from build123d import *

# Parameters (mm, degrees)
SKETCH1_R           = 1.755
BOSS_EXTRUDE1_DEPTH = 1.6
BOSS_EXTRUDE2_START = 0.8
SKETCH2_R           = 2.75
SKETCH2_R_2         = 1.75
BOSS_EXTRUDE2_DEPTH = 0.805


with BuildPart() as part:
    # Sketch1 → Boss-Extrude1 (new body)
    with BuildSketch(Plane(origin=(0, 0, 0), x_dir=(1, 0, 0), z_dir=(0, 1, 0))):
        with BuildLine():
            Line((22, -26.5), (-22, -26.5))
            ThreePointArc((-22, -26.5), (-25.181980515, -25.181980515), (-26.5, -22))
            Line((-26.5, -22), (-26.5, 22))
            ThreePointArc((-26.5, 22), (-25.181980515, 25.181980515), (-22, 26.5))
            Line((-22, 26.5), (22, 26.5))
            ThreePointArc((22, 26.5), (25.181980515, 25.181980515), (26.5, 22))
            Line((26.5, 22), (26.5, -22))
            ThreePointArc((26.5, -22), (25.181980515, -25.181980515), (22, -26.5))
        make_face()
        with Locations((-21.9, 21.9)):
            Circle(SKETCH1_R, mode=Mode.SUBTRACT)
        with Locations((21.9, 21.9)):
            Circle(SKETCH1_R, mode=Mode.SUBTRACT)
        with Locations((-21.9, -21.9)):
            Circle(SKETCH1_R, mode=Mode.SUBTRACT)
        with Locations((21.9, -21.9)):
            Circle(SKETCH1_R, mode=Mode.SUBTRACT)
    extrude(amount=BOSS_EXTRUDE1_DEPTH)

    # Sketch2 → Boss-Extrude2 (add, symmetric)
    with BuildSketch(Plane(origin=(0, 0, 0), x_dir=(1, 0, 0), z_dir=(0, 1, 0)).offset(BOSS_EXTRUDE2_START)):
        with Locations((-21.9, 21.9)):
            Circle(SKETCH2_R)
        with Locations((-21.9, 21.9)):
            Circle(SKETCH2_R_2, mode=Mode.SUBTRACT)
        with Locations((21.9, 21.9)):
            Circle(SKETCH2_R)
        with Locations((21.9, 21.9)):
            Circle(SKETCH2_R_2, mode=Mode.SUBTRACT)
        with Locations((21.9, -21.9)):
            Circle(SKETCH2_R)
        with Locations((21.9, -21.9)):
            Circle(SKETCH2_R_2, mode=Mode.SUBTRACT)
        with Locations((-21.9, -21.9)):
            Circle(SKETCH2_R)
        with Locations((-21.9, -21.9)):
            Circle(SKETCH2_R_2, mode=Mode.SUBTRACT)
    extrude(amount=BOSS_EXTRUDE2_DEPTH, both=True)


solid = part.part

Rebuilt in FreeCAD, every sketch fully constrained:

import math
import FreeCAD as App
import Part
import Sketcher

V = App.Vector

doc = App.newDocument("Part")
body = doc.addObject("PartDesign::Body", "Body")

sketch1 = doc.addObject("Sketcher::SketchObject", "Sketch")
body.addObject(sketch1)
sketch1.AttachmentSupport = (doc.XZ_Plane, [""])
sketch1.MapMode = "FlatFace"
sketch1.addGeometry([
    Part.LineSegment(V(-22, 26.5, 0), V(22, 26.5, 0)),
    Part.ArcOfCircle(Part.Circle(V(22, 22, 0), V(0, 0, 1), 4.5), math.radians(0), math.radians(90)),
    Part.LineSegment(V(26.5, 22, 0), V(26.5, -22, 0)),
    Part.ArcOfCircle(Part.Circle(V(22, -22, 0), V(0, 0, 1), 4.5), math.radians(-90), math.radians(0)),
    Part.LineSegment(V(22, -26.5, 0), V(-22, -26.5, 0)),
    Part.ArcOfCircle(Part.Circle(V(-22, -22, 0), V(0, 0, 1), 4.5), math.radians(-180), math.radians(-90)),
    Part.LineSegment(V(-26.5, -22, 0), V(-26.5, 22, 0)),
    Part.ArcOfCircle(Part.Circle(V(-22, 22, 0), V(0, 0, 1), 4.5), math.radians(90), math.radians(180)),
    Part.Circle(V(21.9, 21.9, 0), V(0, 0, 1), 1.8),
    Part.Circle(V(-21.9, 21.9, 0), V(0, 0, 1), 1.8),
    Part.Circle(V(21.9, -21.9, 0), V(0, 0, 1), 1.8),
    Part.Circle(V(-21.9, -21.9, 0), V(0, 0, 1), 1.8),
], False)
sketch1.addConstraint([
    Sketcher.Constraint("Tangent", 0, 2, 1, 2),
    Sketcher.Constraint("Tangent", 1, 1, 2, 1),
    Sketcher.Constraint("Tangent", 2, 2, 3, 2),
    Sketcher.Constraint("Tangent", 3, 1, 4, 1),
    Sketcher.Constraint("Tangent", 4, 2, 5, 2),
    Sketcher.Constraint("Tangent", 5, 1, 6, 1),
    Sketcher.Constraint("Tangent", 6, 2, 7, 2),
    Sketcher.Constraint("Tangent", 7, 1, 0, 1),
    Sketcher.Constraint("Horizontal", 0),
    Sketcher.Constraint("Vertical", 2),
    Sketcher.Constraint("Horizontal", 4),
    Sketcher.Constraint("Vertical", 6),
    Sketcher.Constraint("Equal", 1, 3),
    Sketcher.Constraint("Equal", 3, 5),
    Sketcher.Constraint("Equal", 5, 7),
    Sketcher.Constraint("Equal", 8, 9),
    Sketcher.Constraint("Equal", 9, 10),
    Sketcher.Constraint("Equal", 10, 11),
    Sketcher.Constraint("Symmetric", 1, 3, 5, 3, -1, 1),
    Sketcher.Constraint("Symmetric", 9, 3, 10, 3, -1, 1),
    Sketcher.Constraint("Symmetric", 8, 3, 11, 3, -1, 1),
    Sketcher.Constraint("Symmetric", 8, 3, 9, 3, -2),
    Sketcher.Constraint("Equal", 4, 2),
    Sketcher.Constraint("Radius", 1, 4.5),
    Sketcher.Constraint("Diameter", 8, 3.51),
    Sketcher.Constraint("DistanceX", 0, 1, 0, 2, 44.0),
    Sketcher.Constraint("DistanceX", -1, 1, 8, 3, 21.9),
    Sketcher.Constraint("DistanceY", -1, 1, 8, 3, 21.9),
])
pad1 = doc.addObject("PartDesign::Pad", "Pad")
body.addObject(pad1)
pad1.Profile = sketch1
pad1.Length = 1.6
pad1.Reversed = True

sketch2 = doc.addObject("Sketcher::SketchObject", "Sketch001")
body.addObject(sketch2)
sketch2.AttachmentSupport = (doc.XZ_Plane, [""])
sketch2.MapMode = "FlatFace"
sketch2.AttachmentOffset = App.Placement(V(0, 0, -0.8), App.Rotation())
sketch2.addGeometry([
    Part.Circle(V(-21.9, -21.9, 0), V(0, 0, 1), 2.8),
    Part.Circle(V(-21.9, -21.9, 0), V(0, 0, 1), 1.8),
    Part.Circle(V(21.9, -21.9, 0), V(0, 0, 1), 2.8),
    Part.Circle(V(21.9, -21.9, 0), V(0, 0, 1), 1.8),
    Part.Circle(V(21.9, 21.9, 0), V(0, 0, 1), 2.8),
    Part.Circle(V(21.9, 21.9, 0), V(0, 0, 1), 1.8),
    Part.Circle(V(-21.9, 21.9, 0), V(0, 0, 1), 2.8),
    Part.Circle(V(-21.9, 21.9, 0), V(0, 0, 1), 1.8),
], False)
sketch2.addConstraint([
    Sketcher.Constraint("Coincident", 1, 3, 0, 3),
    Sketcher.Constraint("Coincident", 3, 3, 2, 3),
    Sketcher.Constraint("Coincident", 5, 3, 4, 3),
    Sketcher.Constraint("Coincident", 7, 3, 6, 3),
    Sketcher.Constraint("Equal", 0, 2),
    Sketcher.Constraint("Equal", 1, 3),
    Sketcher.Constraint("Equal", 2, 4),
    Sketcher.Constraint("Equal", 3, 5),
    Sketcher.Constraint("Equal", 4, 6),
    Sketcher.Constraint("Equal", 5, 7),
    Sketcher.Constraint("Symmetric", 0, 3, 4, 3, -1, 1),
    Sketcher.Constraint("Symmetric", 2, 3, 6, 3, -1, 1),
    Sketcher.Constraint("Symmetric", 0, 3, 2, 3, -2),
    Sketcher.Constraint("Diameter", 0, 5.5),
    Sketcher.Constraint("Diameter", 1, 3.5),
    Sketcher.Constraint("DistanceX", 0, 3, -1, 1, 21.9),
    Sketcher.Constraint("DistanceY", 0, 3, -1, 1, 21.9),
])
pad2 = doc.addObject("PartDesign::Pad", "Pad001")
body.addObject(pad2)
pad2.Profile = sketch2
pad2.Length = 1.61
pad2.Midplane = True

doc.recompute()
